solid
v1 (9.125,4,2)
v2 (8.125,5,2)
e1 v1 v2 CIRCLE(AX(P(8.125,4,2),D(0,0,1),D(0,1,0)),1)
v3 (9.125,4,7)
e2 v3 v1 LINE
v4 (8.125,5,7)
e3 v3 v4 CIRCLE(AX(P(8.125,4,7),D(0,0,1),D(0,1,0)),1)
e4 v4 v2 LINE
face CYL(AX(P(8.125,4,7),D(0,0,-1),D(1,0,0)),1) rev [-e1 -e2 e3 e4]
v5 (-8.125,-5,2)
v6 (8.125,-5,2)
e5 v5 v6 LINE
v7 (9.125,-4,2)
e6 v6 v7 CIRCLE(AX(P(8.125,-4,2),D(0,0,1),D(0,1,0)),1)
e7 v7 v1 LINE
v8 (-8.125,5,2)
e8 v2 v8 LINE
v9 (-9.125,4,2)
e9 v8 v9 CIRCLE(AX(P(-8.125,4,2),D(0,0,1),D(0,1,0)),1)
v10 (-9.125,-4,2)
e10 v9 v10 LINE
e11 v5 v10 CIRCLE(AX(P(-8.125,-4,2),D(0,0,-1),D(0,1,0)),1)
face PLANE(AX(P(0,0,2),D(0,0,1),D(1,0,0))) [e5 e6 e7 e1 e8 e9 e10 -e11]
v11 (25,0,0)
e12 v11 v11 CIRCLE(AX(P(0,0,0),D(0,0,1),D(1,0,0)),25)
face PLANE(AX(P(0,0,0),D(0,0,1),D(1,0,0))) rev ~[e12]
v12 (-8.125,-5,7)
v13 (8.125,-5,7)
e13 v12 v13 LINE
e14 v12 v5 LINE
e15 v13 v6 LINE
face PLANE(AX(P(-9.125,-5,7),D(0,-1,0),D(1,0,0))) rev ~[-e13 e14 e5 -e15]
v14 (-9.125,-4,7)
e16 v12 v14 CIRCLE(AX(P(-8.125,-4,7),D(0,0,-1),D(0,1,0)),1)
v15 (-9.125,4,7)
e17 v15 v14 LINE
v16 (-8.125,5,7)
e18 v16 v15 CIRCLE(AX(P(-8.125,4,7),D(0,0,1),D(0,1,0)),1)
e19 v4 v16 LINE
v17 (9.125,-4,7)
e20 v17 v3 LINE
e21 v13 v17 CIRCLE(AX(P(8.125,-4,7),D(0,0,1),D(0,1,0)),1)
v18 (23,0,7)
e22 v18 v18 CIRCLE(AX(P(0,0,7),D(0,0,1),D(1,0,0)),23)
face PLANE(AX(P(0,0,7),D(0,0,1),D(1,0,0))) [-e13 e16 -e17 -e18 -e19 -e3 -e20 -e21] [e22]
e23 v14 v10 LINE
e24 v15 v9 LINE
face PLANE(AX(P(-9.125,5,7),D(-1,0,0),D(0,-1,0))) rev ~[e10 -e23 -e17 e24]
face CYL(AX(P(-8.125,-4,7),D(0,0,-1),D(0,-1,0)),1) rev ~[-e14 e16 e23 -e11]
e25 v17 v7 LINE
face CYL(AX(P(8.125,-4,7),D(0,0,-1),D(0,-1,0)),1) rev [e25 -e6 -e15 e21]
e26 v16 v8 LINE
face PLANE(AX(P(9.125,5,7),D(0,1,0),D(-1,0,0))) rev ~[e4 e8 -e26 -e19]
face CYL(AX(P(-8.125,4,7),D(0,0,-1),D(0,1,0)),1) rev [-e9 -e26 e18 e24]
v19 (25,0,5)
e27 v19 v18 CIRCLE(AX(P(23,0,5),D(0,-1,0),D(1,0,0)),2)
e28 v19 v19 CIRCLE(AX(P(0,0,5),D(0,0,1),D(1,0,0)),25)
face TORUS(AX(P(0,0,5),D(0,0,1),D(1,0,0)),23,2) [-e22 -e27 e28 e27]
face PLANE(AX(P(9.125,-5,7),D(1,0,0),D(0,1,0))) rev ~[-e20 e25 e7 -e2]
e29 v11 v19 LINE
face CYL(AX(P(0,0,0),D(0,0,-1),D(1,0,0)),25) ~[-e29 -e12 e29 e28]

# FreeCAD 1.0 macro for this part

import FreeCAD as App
import Part
import Sketcher

V = App.Vector
Q = App.Units.Quantity


def edges_at(feature, points):
    """Names of the edges that pass closest to the given points."""
    edges = feature.Shape.Edges
    near = lambda p: min(range(len(edges)), key=lambda i: edges[i].distToShape(Part.Vertex(*p))[0])
    return sorted({f"Edge{near(p) + 1}" for p in points})

doc = App.newDocument("Part")
body = doc.addObject("PartDesign::Body", "Body")

# Sketch on XY plane
sketch1 = body.newObject("Sketcher::SketchObject", "Sketch")
sketch1.AttachmentSupport = (doc.getObject("XY_Plane"), [""])
sketch1.MapMode = "FlatFace"
sketch1.addGeometry(Part.Circle(V(0, 0, 0), V(0, 0, 1), 25), False)
sketch1.addConstraint(Sketcher.Constraint("Coincident", 0, 3, -1, 1))
sketch1.addConstraint(Sketcher.Constraint("Diameter", 0, Q("50 mm")))
pad1 = body.newObject("PartDesign::Pad", "Pad")
pad1.Profile = sketch1
pad1.Length = 7

# Sketch on XY plane
sketch2 = body.newObject("Sketcher::SketchObject", "Sketch001")
sketch2.AttachmentSupport = (doc.getObject("XY_Plane"), [""])
sketch2.MapMode = "FlatFace"
sketch2.AttachmentOffset = App.Placement(V(0, 0, 7), App.Rotation())
sketch2.addGeometry(Part.LineSegment(V(-9, 5, 0), V(-9, -5, 0)), False)
sketch2.addGeometry(Part.LineSegment(V(-9, -5, 0), V(9, -5, 0)), False)
sketch2.addGeometry(Part.LineSegment(V(9, -5, 0), V(9, 5, 0)), False)
sketch2.addGeometry(Part.LineSegment(V(9, 5, 0), V(-9, 5, 0)), False)
sketch2.addConstraint(Sketcher.Constraint("Coincident", 0, 2, 1, 1))
sketch2.addConstraint(Sketcher.Constraint("Coincident", 1, 2, 2, 1))
sketch2.addConstraint(Sketcher.Constraint("Coincident", 2, 2, 3, 1))
sketch2.addConstraint(Sketcher.Constraint("Coincident", 3, 2, 0, 1))
sketch2.addConstraint(Sketcher.Constraint("Vertical", 0))
sketch2.addConstraint(Sketcher.Constraint("Horizontal", 1))
sketch2.addConstraint(Sketcher.Constraint("Vertical", 2))
sketch2.addConstraint(Sketcher.Constraint("Horizontal", 3))
sketch2.addConstraint(Sketcher.Constraint("Symmetric", 0, 2, 2, 2, -1, 1))
sketch2.addConstraint(Sketcher.Constraint("DistanceY", 0, 2, 0, 1, Q("10 mm")))
sketch2.addConstraint(Sketcher.Constraint("DistanceX", 0, 2, -1, 1, Q("9.125 mm")))
pocket1 = body.newObject("PartDesign::Pocket", "Pocket")
pocket1.Profile = sketch2
pocket1.Length = 5
doc.recompute()

fillet = body.newObject("PartDesign::Fillet", "Fillet")
fillet.Base = (pocket1, edges_at(pocket1, [(-25, 0, 7)]))
fillet.Radius = 2
doc.recompute()

fillet2 = body.newObject("PartDesign::Fillet", "Fillet001")
fillet2.Base = (fillet, edges_at(fillet, [
    (-9.125, 5, 4.5),
    (9.125, 5, 4.5),
    (-9.125, -5, 4.5),
    (9.125, -5, 4.5),
]))
fillet2.Radius = 1

doc.recompute()
